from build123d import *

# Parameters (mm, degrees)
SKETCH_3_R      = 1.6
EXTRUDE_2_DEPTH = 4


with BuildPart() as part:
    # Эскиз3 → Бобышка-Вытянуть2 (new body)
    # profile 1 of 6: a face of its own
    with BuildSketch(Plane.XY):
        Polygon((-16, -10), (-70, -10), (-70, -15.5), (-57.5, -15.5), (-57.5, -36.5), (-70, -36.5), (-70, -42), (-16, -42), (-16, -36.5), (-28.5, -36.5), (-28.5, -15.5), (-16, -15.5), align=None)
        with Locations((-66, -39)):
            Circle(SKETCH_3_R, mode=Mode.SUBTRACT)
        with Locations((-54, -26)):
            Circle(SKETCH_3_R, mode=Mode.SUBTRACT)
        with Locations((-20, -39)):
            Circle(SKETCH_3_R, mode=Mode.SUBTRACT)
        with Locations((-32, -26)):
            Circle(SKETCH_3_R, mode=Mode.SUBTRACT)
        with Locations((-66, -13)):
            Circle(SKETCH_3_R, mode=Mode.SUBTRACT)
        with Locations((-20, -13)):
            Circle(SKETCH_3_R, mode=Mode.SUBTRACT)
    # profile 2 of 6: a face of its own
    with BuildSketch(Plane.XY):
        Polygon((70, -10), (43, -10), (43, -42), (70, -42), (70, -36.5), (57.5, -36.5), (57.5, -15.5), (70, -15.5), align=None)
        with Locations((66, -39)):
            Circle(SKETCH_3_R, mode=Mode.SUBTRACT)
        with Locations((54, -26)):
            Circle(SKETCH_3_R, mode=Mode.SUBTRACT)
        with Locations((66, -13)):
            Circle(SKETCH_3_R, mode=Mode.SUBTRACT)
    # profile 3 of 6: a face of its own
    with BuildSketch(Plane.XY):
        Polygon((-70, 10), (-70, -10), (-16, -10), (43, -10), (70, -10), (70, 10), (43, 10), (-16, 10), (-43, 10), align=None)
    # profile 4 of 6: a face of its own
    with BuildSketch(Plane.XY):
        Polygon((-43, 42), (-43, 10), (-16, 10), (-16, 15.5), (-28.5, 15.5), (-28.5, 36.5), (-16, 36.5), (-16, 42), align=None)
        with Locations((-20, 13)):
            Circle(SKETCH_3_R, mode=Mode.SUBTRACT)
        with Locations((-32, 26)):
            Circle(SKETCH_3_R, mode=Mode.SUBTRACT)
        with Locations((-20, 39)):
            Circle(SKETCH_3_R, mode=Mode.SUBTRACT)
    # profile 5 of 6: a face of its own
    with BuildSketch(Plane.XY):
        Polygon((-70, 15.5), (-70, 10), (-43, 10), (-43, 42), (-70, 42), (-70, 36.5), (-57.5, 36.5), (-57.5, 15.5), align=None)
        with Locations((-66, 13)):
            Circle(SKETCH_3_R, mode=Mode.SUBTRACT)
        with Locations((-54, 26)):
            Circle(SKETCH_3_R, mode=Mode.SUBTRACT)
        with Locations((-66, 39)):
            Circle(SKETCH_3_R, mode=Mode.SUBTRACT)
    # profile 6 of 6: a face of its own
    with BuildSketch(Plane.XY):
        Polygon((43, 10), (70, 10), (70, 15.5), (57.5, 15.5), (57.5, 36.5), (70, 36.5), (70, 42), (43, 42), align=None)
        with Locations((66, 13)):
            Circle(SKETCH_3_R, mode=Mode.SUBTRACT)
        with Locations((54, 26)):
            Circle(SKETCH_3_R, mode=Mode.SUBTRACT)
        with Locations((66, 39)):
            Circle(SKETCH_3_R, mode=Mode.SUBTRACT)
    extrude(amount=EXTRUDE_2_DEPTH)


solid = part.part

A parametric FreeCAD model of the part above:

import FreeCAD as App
import Part
import Sketcher
Q = App.Units.Quantity

doc = App.newDocument("Part")
params = doc.addObject("Spreadsheet::Sheet", "Params")
for row, (alias, value) in enumerate([
    ("sketch1_diameter", "3.2 mm"),
    ("sketch1_width", "59 mm"),
    ("sketch1_width2", "27 mm"),
    ("sketch1_width3", "54 mm"),
    ("sketch1_height", "32 mm"),
    ("pad1_length", "4 mm"),
], start=1):
    params.set(f"A{row}", alias)
    params.set(f"B{row}", "=" + value)
    params.setAlias(f"B{row}", alias)

body = doc.addObject("PartDesign::Body", "Body")

sketch1 = doc.addObject("Sketcher::SketchObject", "Sketch")
body.addObject(sketch1)
sketch1.AttachmentSupport = (doc.XY_Plane, [""])
sketch1.MapMode = "FlatFace"
sketch1.addGeometry([
    Part.LineSegment(App.Vector(-16, -15.5, 0), App.Vector(-16, -10, 0)),
    Part.LineSegment(App.Vector(-16, -10, 0), App.Vector(43, -10, 0)),
    Part.LineSegment(App.Vector(43, -10, 0), App.Vector(43, -42, 0)),
    Part.LineSegment(App.Vector(43, -42, 0), App.Vector(70, -42, 0)),
    Part.LineSegment(App.Vector(70, -42, 0), App.Vector(70, -36.5, 0)),
    Part.LineSegment(App.Vector(70, -36.5, 0), App.Vector(57.5, -36.5, 0)),
    Part.LineSegment(App.Vector(57.5, -36.5, 0), App.Vector(57.5, -15.5, 0)),
    Part.LineSegment(App.Vector(57.5, -15.5, 0), App.Vector(70, -15.5, 0)),
    Part.LineSegment(App.Vector(70, -15.5, 0), App.Vector(70, 15.5, 0)),
    Part.LineSegment(App.Vector(70, 15.5, 0), App.Vector(57.5, 15.5, 0)),
    Part.LineSegment(App.Vector(57.5, 15.5, 0), App.Vector(57.5, 36.5, 0)),
    Part.LineSegment(App.Vector(57.5, 36.5, 0), App.Vector(70, 36.5, 0)),
    Part.LineSegment(App.Vector(70, 36.5, 0), App.Vector(70, 42, 0)),
    Part.LineSegment(App.Vector(70, 42, 0), App.Vector(43, 42, 0)),
    Part.LineSegment(App.Vector(43, 42, 0), App.Vector(43, 10, 0)),
    Part.LineSegment(App.Vector(43, 10, 0), App.Vector(-16, 10, 0)),
    Part.LineSegment(App.Vector(-16, 10, 0), App.Vector(-16, 15.5, 0)),
    Part.LineSegment(App.Vector(-16, 15.5, 0), App.Vector(-28.5, 15.5, 0)),
    Part.LineSegment(App.Vector(-28.5, 15.5, 0), App.Vector(-28.5, 36.5, 0)),
    Part.LineSegment(App.Vector(-28.5, 36.5, 0), App.Vector(-16, 36.5, 0)),
    Part.LineSegment(App.Vector(-16, 36.5, 0), App.Vector(-16, 42, 0)),
    Part.LineSegment(App.Vector(-16, 42, 0), App.Vector(-70, 42, 0)),
    Part.LineSegment(App.Vector(-70, 42, 0), App.Vector(-70, 36.5, 0)),
    Part.LineSegment(App.Vector(-70, 36.5, 0), App.Vector(-57.5, 36.5, 0)),
    Part.LineSegment(App.Vector(-57.5, 36.5, 0), App.Vector(-57.5, 15.5, 0)),
    Part.LineSegment(App.Vector(-57.5, 15.5, 0), App.Vector(-70, 15.5, 0)),
    Part.LineSegment(App.Vector(-70, 15.5, 0), App.Vector(-70, -15.5, 0)),
    Part.LineSegment(App.Vector(-70, -15.5, 0), App.Vector(-57.5, -15.5, 0)),
    Part.LineSegment(App.Vector(-57.5, -15.5, 0), App.Vector(-57.5, -36.5, 0)),
    Part.LineSegment(App.Vector(-57.5, -36.5, 0), App.Vector(-70, -36.5, 0)),
    Part.LineSegment(App.Vector(-70, -36.5, 0), App.Vector(-70, -42, 0)),
    Part.LineSegment(App.Vector(-70, -42, 0), App.Vector(-16, -42, 0)),
    Part.LineSegment(App.Vector(-16, -42, 0), App.Vector(-16, -36.5, 0)),
    Part.LineSegment(App.Vector(-16, -36.5, 0), App.Vector(-28.5, -36.5, 0)),
    Part.LineSegment(App.Vector(-28.5, -36.5, 0), App.Vector(-28.5, -15.5, 0)),
    Part.LineSegment(App.Vector(-28.5, -15.5, 0), App.Vector(-16, -15.5, 0)),
    Part.Circle(App.Vector(-66, -39, 0), App.Vector(0, 0, 1), 1.6),
    Part.Circle(App.Vector(-20, -39, 0), App.Vector(0, 0, 1), 1.6),
    Part.Circle(App.Vector(-54, -26, 0), App.Vector(0, 0, 1), 1.6),
    Part.Circle(App.Vector(-66, -13, 0), App.Vector(0, 0, 1), 1.6),
    Part.Circle(App.Vector(-32, -26, 0), App.Vector(0, 0, 1), 1.6),
    Part.Circle(App.Vector(-20, -13, 0), App.Vector(0, 0, 1), 1.6),
    Part.Circle(App.Vector(-54, 26, 0), App.Vector(0, 0, 1), 1.6),
    Part.Circle(App.Vector(-66, 13, 0), App.Vector(0, 0, 1), 1.6),
    Part.Circle(App.Vector(-66, 39, 0), App.Vector(0, 0, 1), 1.6),
    Part.Circle(App.Vector(66, -13, 0), App.Vector(0, 0, 1), 1.6),
    Part.Circle(App.Vector(66, -39, 0), App.Vector(0, 0, 1), 1.6),
    Part.Circle(App.Vector(54, -26, 0), App.Vector(0, 0, 1), 1.6),
    Part.Circle(App.Vector(66, 39, 0), App.Vector(0, 0, 1), 1.6),
    Part.Circle(App.Vector(66, 13, 0), App.Vector(0, 0, 1), 1.6),
    Part.Circle(App.Vector(54, 26, 0), App.Vector(0, 0, 1), 1.6),
    Part.Circle(App.Vector(-32, 26, 0), App.Vector(0, 0, 1), 1.6),
    Part.Circle(App.Vector(-20, 39, 0), App.Vector(0, 0, 1), 1.6),
    Part.Circle(App.Vector(-20, 13, 0), App.Vector(0, 0, 1), 1.6),
], False)
sketch1.addConstraint([
    Sketcher.Constraint("Coincident", 0, 2, 1, 1),
    Sketcher.Constraint("Coincident", 1, 2, 2, 1),
    Sketcher.Constraint("Coincident", 2, 2, 3, 1),
    Sketcher.Constraint("Coincident", 3, 2, 4, 1),
    Sketcher.Constraint("Coincident", 4, 2, 5, 1),
    Sketcher.Constraint("Coincident", 5, 2, 6, 1),
    Sketcher.Constraint("Coincident", 6, 2, 7, 1),
    Sketcher.Constraint("Coincident", 7, 2, 8, 1),
    Sketcher.Constraint("Coincident", 8, 2, 9, 1),
    Sketcher.Constraint("Coincident", 9, 2, 10, 1),
    Sketcher.Constraint("Coincident", 10, 2, 11, 1),
    Sketcher.Constraint("Coincident", 11, 2, 12, 1),
    Sketcher.Constraint("Coincident", 12, 2, 13, 1),
    Sketcher.Constraint("Coincident", 13, 2, 14, 1),
    Sketcher.Constraint("Coincident", 14, 2, 15, 1),
    Sketcher.Constraint("Coincident", 15, 2, 16, 1),
    Sketcher.Constraint("Coincident", 16, 2, 17, 1),
    Sketcher.Constraint("Coincident", 17, 2, 18, 1),
    Sketcher.Constraint("Coincident", 18, 2, 19, 1),
    Sketcher.Constraint("Coincident", 19, 2, 20, 1),
    Sketcher.Constraint("Coincident", 20, 2, 21, 1),
    Sketcher.Constraint("Coincident", 21, 2, 22, 1),
    Sketcher.Constraint("Coincident", 22, 2, 23, 1),
    Sketcher.Constraint("Coincident", 23, 2, 24, 1),
    Sketcher.Constraint("Coincident", 24, 2, 25, 1),
    Sketcher.Constraint("Coincident", 25, 2, 26, 1),
    Sketcher.Constraint("Coincident", 26, 2, 27, 1),
    Sketcher.Constraint("Coincident", 27, 2, 28, 1),
    Sketcher.Constraint("Coincident", 28, 2, 29, 1),
    Sketcher.Constraint("Coincident", 29, 2, 30, 1),
    Sketcher.Constraint("Coincident", 30, 2, 31, 1),
    Sketcher.Constraint("Coincident", 31, 2, 32, 1),
    Sketcher.Constraint("Coincident", 32, 2, 33, 1),
    Sketcher.Constraint("Coincident", 33, 2, 34, 1),
    Sketcher.Constraint("Coincident", 34, 2, 35, 1),
    Sketcher.Constraint("Coincident", 35, 2, 0, 1),
    Sketcher.Constraint("Vertical", 0),
    Sketcher.Constraint("Horizontal", 1),
    Sketcher.Constraint("Vertical", 2),
    Sketcher.Constraint("Horizontal", 3),
    Sketcher.Constraint("Vertical", 4),
    Sketcher.Constraint("Horizontal", 5),
    Sketcher.Constraint("Vertical", 6),
    Sketcher.Constraint("Horizontal", 7),
    Sketcher.Constraint("Vertical", 8),
    Sketcher.Constraint("Horizontal", 9),
    Sketcher.Constraint("Vertical", 10),
    Sketcher.Constraint("Horizontal", 11),
    Sketcher.Constraint("Vertical", 12),
    Sketcher.Constraint("Horizontal", 13),
    Sketcher.Constraint("Vertical", 14),
    Sketcher.Constraint("Horizontal", 15),
    Sketcher.Constraint("Vertical", 16),
    Sketcher.Constraint("Horizontal", 17),
    Sketcher.Constraint("Vertical", 18),
    Sketcher.Constraint("Horizontal", 19),
    Sketcher.Constraint("Vertical", 20),
    Sketcher.Constraint("Horizontal", 21),
    Sketcher.Constraint("Vertical", 22),
    Sketcher.Constraint("Horizontal", 23),
    Sketcher.Constraint("Vertical", 24),
    Sketcher.Constraint("Horizontal", 25),
    Sketcher.Constraint("Vertical", 26),
    Sketcher.Constraint("Horizontal", 27),
    Sketcher.Constraint("Vertical", 28),
    Sketcher.Constraint("Horizontal", 29),
    Sketcher.Constraint("Vertical", 30),
    Sketcher.Constraint("Horizontal", 31),
    Sketcher.Constraint("Vertical", 32),
    Sketcher.Constraint("Horizontal", 33),
    Sketcher.Constraint("Vertical", 34),
    Sketcher.Constraint("Horizontal", 35),
    Sketcher.Constraint("Equal", 36, 37),
    Sketcher.Constraint("Equal", 37, 38),
    Sketcher.Constraint("Equal", 38, 39),
    Sketcher.Constraint("Equal", 39, 40),
    Sketcher.Constraint("Equal", 40, 41),
    Sketcher.Constraint("Equal", 41, 42),
    Sketcher.Constraint("Equal", 42, 43),
    Sketcher.Constraint("Equal", 43, 44),
    Sketcher.Constraint("Equal", 44, 45),
    Sketcher.Constraint("Equal", 45, 46),
    Sketcher.Constraint("Equal", 46, 47),
    Sketcher.Constraint("Equal", 47, 48),
    Sketcher.Constraint("Equal", 48, 49),
    Sketcher.Constraint("Equal", 49, 50),
    Sketcher.Constraint("Equal", 50, 51),
    Sketcher.Constraint("Equal", 51, 52),
    Sketcher.Constraint("Equal", 52, 53),
    Sketcher.Constraint("Symmetric", 43, 3, 45, 3, -1, 1),
    Sketcher.Constraint("Symmetric", 44, 3, 46, 3, -1, 1),
    Sketcher.Constraint("Symmetric", 42, 3, 47, 3, -1, 1),
    Sketcher.Constraint("Symmetric", 36, 3, 48, 3, -1, 1),
    Sketcher.Constraint("Symmetric", 39, 3, 49, 3, -1, 1),
    Sketcher.Constraint("Symmetric", 38, 3, 50, 3, -1, 1),
    Sketcher.Constraint("Symmetric", 3, 2, 21, 2, -1, 1),
    Sketcher.Constraint("Symmetric", 5, 2, 23, 2, -1, 1),
    Sketcher.Constraint("Symmetric", 7, 2, 25, 2, -1, 1),
    Sketcher.Constraint("Symmetric", 9, 2, 27, 2, -1, 1),
    Sketcher.Constraint("Symmetric", 11, 2, 29, 2, -1, 1),
    Sketcher.Constraint("Symmetric", 39, 3, 45, 3, -2),
    Sketcher.Constraint("Symmetric", 36, 3, 46, 3, -2),
    Sketcher.Constraint("Symmetric", 38, 3, 47, 3, -2),
    Sketcher.Constraint("Symmetric", 12, 2, 21, 2, -2),
    Sketcher.Constraint("Symmetric", 10, 2, 23, 2, -2),
    Sketcher.Constraint("Symmetric", 40, 3, 51, 3, -1),
    Sketcher.Constraint("Symmetric", 37, 3, 52, 3, -1),
    Sketcher.Constraint("Symmetric", 41, 3, 53, 3, -1),
    Sketcher.Constraint("Symmetric", 1, 2, 14, 2, -1),
    Sketcher.Constraint("Symmetric", 20, 2, 31, 2, -1),
    Sketcher.Constraint("Symmetric", 18, 2, 33, 2, -1),
    Sketcher.Constraint("Symmetric", 16, 2, 35, 2, -1),
    Sketcher.Constraint("Horizontal", 36, 3, 37, 3),
    Sketcher.Constraint("Horizontal", 38, 3, 40, 3),
    Sketcher.Constraint("Horizontal", 39, 3, 41, 3),
    Sketcher.Constraint("Horizontal", 9, 2, 16, 2),
    Sketcher.Constraint("Horizontal", 11, 2, 18, 2),
    Sketcher.Constraint("Horizontal", 17, 2, 24, 2),
    Sketcher.Constraint("Vertical", 36, 3, 39, 3),
    Sketcher.Constraint("Vertical", 37, 3, 41, 3),
    Sketcher.Constraint("Vertical", 4, 2, 7, 2),
    Sketcher.Constraint("Vertical", 16, 2, 19, 2),
    Sketcher.Constraint("Equal", 11, 17),
    Sketcher.Constraint("Equal", 0, 4),
    Sketcher.Constraint("Diameter", 36, Q("3.2 mm")),
    Sketcher.Constraint("DistanceX", 1, 1, 1, 2, Q("59 mm")),
    Sketcher.Constraint("DistanceX", 3, 1, 3, 2, Q("27 mm")),
    Sketcher.Constraint("DistanceX", 21, 2, 21, 1, Q("54 mm")),
    Sketcher.Constraint("DistanceY", 2, 2, 2, 1, Q("32 mm")),
    Sketcher.Constraint("DistanceY", 6, 1, 6, 2, Q("21 mm")),
    Sketcher.Constraint("DistanceY", 8, 1, 8, 2, Q("31 mm")),
    Sketcher.Constraint("DistanceX", 5, 2, 5, 1, Q("12.5 mm")),
    Sketcher.Constraint("DistanceX", 36, 3, -1, 1, Q("66 mm")),
    Sketcher.Constraint("DistanceY", 36, 3, -1, 1, Q("39 mm")),
    Sketcher.Constraint("DistanceX", 37, 3, -1, 1, Q("20 mm")),
    Sketcher.Constraint("DistanceX", 38, 3, -1, 1, Q("54 mm")),
    Sketcher.Constraint("DistanceY", 38, 3, -1, 1, Q("26 mm")),
    Sketcher.Constraint("DistanceY", 39, 3, -1, 1, Q("13 mm")),
    Sketcher.Constraint("DistanceX", 40, 3, -1, 1, Q("32 mm")),
])
sketch1.setExpression("Constraints[124]", "Params.sketch1_diameter")
sketch1.setExpression("Constraints[125]", "Params.sketch1_width")
sketch1.setExpression("Constraints[126]", "Params.sketch1_width2")
sketch1.setExpression("Constraints[127]", "Params.sketch1_width3")
sketch1.setExpression("Constraints[128]", "Params.sketch1_height")
pad1 = doc.addObject("PartDesign::Pad", "Pad")
body.addObject(pad1)
pad1.Profile = sketch1
pad1.setExpression("Length", "Params.pad1_length")

doc.recompute()
